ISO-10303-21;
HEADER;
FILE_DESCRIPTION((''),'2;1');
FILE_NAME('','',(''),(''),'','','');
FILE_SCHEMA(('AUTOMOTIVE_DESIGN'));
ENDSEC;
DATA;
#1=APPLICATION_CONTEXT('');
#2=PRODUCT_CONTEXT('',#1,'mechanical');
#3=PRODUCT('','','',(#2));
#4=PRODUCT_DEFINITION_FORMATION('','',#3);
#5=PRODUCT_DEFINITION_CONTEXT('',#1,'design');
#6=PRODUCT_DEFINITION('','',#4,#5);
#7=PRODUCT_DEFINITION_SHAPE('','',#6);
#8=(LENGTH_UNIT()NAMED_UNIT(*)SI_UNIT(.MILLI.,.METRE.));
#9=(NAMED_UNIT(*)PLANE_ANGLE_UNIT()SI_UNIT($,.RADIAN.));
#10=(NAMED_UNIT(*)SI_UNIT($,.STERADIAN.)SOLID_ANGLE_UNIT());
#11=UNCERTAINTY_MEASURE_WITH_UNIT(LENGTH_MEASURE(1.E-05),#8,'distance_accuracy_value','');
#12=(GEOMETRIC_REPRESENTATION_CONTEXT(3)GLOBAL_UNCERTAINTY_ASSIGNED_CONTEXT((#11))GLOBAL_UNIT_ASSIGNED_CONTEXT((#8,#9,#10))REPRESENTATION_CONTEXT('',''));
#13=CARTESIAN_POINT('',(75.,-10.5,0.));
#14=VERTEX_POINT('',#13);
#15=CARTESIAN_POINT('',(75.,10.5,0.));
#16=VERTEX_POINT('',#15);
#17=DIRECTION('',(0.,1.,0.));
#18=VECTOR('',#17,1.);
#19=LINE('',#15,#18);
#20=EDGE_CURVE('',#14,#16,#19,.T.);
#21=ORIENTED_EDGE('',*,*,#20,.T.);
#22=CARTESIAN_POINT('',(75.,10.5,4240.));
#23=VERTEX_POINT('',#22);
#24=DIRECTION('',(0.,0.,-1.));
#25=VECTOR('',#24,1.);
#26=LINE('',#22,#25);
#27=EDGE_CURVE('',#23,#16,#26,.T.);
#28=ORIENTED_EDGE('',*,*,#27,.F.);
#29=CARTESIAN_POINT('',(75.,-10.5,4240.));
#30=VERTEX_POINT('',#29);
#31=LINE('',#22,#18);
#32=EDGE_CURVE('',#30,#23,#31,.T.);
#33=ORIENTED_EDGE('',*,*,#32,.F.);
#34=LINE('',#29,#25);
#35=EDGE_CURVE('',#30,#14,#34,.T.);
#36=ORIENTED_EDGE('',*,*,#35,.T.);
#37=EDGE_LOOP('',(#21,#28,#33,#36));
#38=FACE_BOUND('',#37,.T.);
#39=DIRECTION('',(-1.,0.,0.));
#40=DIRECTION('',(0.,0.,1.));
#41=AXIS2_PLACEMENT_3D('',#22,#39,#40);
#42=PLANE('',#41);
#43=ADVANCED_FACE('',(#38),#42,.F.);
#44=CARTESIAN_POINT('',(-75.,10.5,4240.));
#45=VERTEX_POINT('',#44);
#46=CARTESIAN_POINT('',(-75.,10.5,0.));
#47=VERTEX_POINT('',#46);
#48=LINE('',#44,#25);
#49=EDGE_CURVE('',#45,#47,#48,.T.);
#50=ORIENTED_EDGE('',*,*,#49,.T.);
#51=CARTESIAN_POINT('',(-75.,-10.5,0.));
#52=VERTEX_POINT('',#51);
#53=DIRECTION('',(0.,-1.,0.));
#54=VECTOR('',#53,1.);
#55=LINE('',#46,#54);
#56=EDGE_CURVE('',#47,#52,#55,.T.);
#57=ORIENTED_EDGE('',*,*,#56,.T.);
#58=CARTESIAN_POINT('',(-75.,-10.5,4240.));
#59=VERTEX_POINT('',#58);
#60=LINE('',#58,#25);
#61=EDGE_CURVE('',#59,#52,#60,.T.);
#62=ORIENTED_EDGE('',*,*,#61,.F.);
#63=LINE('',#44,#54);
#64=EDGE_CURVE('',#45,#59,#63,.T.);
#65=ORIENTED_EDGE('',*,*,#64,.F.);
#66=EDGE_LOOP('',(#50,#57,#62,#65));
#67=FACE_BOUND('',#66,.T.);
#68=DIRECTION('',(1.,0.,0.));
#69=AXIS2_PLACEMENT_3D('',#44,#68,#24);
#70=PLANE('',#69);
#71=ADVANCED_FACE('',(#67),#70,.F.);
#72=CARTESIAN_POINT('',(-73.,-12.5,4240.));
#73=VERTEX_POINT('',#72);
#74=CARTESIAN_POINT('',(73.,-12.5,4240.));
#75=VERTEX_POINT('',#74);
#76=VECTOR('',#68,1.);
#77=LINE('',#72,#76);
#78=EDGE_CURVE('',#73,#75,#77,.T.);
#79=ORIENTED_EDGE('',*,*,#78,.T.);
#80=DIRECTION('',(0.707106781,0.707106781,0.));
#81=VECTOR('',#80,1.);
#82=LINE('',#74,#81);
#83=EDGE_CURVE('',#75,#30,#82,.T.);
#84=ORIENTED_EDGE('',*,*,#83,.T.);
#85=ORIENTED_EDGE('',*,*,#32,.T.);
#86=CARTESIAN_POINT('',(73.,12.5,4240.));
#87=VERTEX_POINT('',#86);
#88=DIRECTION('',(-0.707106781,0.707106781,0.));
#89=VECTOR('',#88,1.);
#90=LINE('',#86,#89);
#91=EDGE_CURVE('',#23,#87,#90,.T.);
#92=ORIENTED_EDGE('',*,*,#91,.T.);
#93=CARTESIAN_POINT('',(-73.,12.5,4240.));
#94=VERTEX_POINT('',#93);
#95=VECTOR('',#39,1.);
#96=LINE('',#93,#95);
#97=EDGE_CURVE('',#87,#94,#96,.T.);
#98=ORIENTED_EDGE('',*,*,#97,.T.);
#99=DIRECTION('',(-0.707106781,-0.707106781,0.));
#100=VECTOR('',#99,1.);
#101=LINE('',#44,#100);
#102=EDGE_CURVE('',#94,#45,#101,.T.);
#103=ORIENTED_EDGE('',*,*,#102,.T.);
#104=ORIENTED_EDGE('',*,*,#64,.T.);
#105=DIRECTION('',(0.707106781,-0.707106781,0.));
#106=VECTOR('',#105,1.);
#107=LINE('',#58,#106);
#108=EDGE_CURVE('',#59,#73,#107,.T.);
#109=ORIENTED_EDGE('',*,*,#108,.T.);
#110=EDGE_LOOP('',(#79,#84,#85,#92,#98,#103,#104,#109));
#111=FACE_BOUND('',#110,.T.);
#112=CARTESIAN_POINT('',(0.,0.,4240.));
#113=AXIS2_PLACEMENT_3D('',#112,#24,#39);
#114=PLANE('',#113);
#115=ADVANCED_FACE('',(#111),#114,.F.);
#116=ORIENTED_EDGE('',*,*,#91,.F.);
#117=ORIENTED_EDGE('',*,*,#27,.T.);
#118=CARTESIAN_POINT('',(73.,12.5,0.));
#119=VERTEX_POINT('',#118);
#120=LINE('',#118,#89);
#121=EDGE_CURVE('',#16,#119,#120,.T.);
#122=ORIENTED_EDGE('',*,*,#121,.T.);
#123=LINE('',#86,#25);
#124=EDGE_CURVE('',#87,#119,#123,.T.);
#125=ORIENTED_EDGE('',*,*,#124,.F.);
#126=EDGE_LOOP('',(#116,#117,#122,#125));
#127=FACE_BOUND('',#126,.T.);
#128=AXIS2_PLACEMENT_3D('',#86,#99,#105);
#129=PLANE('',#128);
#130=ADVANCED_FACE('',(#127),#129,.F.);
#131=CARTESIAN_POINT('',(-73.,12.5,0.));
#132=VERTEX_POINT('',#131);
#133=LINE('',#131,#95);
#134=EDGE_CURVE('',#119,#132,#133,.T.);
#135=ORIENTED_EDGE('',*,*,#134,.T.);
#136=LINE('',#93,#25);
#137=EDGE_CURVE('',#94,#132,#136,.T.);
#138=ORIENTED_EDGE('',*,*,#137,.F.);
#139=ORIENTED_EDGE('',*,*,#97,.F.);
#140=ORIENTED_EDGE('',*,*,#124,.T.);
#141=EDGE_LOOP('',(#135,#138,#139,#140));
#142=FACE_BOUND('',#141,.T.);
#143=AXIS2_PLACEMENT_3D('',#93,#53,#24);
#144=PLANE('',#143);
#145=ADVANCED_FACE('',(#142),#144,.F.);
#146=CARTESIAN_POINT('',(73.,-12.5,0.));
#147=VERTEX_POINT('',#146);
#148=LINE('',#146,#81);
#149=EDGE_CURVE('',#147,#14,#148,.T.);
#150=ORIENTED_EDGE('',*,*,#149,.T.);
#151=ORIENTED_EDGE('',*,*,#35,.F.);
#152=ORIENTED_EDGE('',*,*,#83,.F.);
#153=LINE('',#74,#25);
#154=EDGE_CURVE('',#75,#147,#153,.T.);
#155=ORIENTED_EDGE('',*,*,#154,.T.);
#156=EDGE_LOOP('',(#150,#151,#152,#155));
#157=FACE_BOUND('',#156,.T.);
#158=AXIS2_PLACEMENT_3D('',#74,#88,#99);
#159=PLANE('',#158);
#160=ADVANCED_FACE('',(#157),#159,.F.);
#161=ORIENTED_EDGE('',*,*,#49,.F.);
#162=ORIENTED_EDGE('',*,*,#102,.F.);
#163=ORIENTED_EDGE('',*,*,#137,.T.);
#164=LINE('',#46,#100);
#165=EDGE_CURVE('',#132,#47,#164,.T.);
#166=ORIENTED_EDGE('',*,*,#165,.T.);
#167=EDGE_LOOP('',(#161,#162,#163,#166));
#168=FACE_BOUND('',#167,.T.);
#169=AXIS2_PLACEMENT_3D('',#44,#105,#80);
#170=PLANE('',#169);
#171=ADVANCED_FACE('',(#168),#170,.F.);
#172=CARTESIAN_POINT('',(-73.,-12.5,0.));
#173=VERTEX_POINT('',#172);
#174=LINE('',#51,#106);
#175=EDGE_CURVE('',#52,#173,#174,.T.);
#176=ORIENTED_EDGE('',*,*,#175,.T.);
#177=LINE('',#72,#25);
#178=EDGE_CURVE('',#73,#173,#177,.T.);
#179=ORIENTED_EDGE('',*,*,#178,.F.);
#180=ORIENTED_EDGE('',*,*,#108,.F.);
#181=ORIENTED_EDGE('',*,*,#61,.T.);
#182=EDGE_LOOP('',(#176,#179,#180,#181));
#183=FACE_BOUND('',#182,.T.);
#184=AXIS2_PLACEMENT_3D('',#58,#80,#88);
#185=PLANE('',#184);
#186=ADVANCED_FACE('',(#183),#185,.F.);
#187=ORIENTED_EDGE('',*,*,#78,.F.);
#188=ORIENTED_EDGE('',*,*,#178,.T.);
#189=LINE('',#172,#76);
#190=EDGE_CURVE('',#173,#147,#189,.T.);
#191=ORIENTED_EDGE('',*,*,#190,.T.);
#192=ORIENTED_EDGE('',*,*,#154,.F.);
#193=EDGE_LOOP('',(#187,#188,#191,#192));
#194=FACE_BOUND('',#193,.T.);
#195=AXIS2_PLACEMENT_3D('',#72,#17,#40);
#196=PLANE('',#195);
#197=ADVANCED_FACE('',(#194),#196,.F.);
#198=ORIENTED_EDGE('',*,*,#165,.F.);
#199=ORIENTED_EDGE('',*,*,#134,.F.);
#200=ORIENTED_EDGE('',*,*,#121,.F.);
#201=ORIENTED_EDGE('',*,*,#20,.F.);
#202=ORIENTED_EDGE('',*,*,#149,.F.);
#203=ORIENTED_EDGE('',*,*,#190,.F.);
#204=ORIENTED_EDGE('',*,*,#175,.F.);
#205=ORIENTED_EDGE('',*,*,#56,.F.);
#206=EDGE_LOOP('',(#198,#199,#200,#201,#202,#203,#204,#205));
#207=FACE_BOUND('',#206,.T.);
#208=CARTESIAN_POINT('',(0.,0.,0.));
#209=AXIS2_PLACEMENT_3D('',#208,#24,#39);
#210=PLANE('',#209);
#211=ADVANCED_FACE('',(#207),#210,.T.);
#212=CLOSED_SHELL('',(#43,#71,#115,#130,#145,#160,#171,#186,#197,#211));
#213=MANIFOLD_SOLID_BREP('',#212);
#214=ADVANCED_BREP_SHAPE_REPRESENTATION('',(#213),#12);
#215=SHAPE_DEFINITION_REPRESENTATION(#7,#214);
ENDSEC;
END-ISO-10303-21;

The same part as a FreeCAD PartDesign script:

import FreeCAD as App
import Part
import Sketcher


def add_polygon(sketch, points):
    """Adds a closed chain of lines whose ends are joined by coincident constraints."""
    first, n = sketch.GeometryCount, len(points)
    for a, b in zip(points, points[1:] + points[:1]):
        sketch.addGeometry(Part.LineSegment(App.Vector(*a, 0), App.Vector(*b, 0)), False)
    for i in range(n):
        sketch.addConstraint(Sketcher.Constraint("Coincident", first + i, 2, first + (i + 1) % n, 1))

doc = App.newDocument("Part")
body = doc.addObject("PartDesign::Body", "Body")

# Sketch on XY plane
sketch1 = doc.addObject("Sketcher::SketchObject", "Sketch")
body.addObject(sketch1)
sketch1.AttachmentSupport = (doc.XY_Plane, [""])
sketch1.MapMode = "FlatFace"
add_polygon(sketch1, [(-73, 12.5), (-75, 10.5), (-75, -10.5), (-73, -12.5), (73, -12.5), (75, -10.5), (75, 10.5), (73, 12.5)])  # lines 0-7
sketch1.addConstraint([
    Sketcher.Constraint("Vertical", 1),
    Sketcher.Constraint("Horizontal", 3),
    Sketcher.Constraint("Vertical", 5),
    Sketcher.Constraint("Horizontal", 7),
    Sketcher.Constraint("Symmetric", 0, 2, 4, 2, -1, 1),
    Sketcher.Constraint("Symmetric", 2, 2, 6, 2, -1, 1),
    Sketcher.Constraint("Perpendicular", 0, 2),
    Sketcher.Constraint("Perpendicular", 2, 4),
    Sketcher.Constraint("Perpendicular", 4, 6),
    Sketcher.Constraint("Horizontal", 1, 2, 4, 2),
    Sketcher.Constraint("Vertical", 3, 2, 6, 2),
    Sketcher.Constraint("DistanceX", 3, 1, 3, 2, 146.0),
    Sketcher.Constraint("DistanceY", 1, 2, 1, 1, 21.0),
    Sketcher.Constraint("DistanceX", 0, 2, -1, 1, 75.0),
])
pad1 = doc.addObject("PartDesign::Pad", "Pad")
body.addObject(pad1)
pad1.Profile = sketch1
pad1.Length = 4240

doc.recompute()
